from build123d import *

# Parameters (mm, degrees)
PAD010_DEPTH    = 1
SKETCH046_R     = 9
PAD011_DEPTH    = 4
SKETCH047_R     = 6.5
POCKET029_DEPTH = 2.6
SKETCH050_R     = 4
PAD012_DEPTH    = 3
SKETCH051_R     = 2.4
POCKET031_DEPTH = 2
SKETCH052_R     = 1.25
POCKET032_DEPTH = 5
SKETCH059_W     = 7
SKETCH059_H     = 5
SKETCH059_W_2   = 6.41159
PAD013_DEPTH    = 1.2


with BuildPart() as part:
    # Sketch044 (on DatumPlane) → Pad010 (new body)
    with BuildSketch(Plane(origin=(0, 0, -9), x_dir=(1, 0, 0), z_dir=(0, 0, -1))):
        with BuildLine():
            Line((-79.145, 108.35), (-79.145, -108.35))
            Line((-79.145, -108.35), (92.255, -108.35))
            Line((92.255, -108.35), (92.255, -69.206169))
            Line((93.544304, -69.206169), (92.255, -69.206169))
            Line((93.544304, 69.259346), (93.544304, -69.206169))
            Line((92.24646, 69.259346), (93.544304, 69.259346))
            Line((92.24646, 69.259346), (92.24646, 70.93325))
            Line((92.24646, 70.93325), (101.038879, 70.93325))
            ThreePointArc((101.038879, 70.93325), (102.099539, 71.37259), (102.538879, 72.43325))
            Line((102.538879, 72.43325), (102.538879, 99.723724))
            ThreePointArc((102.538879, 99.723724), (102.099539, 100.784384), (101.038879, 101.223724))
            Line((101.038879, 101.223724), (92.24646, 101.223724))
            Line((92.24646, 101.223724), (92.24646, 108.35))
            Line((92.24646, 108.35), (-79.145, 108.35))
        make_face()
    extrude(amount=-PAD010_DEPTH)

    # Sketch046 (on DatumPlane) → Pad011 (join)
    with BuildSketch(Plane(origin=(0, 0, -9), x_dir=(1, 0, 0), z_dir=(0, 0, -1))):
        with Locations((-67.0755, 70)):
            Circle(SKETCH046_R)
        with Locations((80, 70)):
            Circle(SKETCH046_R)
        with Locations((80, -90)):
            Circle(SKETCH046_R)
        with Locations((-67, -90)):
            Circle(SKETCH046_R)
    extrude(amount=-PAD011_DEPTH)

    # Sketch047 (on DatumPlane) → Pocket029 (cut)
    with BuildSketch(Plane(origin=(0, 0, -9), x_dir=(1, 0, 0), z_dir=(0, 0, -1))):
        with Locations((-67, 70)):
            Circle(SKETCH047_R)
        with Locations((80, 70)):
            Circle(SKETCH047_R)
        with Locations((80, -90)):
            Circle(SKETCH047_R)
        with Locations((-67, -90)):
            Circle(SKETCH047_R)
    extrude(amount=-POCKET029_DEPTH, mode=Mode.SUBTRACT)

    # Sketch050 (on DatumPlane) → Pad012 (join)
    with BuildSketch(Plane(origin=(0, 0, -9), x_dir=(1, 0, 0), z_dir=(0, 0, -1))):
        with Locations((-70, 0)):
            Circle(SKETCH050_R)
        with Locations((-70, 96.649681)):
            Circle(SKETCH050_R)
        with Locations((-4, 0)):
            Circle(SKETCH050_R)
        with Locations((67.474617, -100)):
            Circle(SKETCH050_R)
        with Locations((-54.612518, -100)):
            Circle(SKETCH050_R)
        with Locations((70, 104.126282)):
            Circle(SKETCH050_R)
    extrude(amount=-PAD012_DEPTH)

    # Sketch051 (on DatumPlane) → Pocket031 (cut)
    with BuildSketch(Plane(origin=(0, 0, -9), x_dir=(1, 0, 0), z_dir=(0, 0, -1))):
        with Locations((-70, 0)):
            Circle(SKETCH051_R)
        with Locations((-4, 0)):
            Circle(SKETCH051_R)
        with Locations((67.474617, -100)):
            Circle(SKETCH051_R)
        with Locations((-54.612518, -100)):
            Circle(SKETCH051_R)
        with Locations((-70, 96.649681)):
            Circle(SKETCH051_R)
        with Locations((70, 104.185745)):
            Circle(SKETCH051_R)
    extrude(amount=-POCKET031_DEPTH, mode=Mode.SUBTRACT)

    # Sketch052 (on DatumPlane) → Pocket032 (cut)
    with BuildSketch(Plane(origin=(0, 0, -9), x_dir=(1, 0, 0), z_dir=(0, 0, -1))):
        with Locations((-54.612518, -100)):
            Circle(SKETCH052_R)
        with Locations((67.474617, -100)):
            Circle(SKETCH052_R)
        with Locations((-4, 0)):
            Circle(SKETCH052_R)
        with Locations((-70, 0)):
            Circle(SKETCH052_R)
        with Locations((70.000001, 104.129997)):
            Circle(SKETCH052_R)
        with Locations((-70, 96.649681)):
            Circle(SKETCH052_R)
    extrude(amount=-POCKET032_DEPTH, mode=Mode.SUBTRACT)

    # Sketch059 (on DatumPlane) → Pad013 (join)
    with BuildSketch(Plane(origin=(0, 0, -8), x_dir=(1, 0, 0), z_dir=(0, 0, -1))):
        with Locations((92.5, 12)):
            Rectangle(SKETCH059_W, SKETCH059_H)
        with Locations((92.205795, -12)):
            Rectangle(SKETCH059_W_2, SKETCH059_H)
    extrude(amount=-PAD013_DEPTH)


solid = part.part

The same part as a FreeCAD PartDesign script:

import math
import FreeCAD as App
import Part
import Sketcher
from FreeCAD import Vector
Q = App.Units.Quantity


def add_polygon(sketch, points):
    """Adds a closed chain of lines whose ends are joined by coincident constraints."""
    first, n = sketch.GeometryCount, len(points)
    for a, b in zip(points, points[1:] + points[:1]):
        sketch.addGeometry(Part.LineSegment(App.Vector(*a, 0), App.Vector(*b, 0)), False)
    for i in range(n):
        sketch.addConstraint(Sketcher.Constraint("Coincident", first + i, 2, first + (i + 1) % n, 1))

doc = App.newDocument("Part")
body = doc.addObject("PartDesign::Body", "Body")

# Sketch on XY plane
sketch1 = body.newObject("Sketcher::SketchObject", "Sketch")
sketch1.AttachmentSupport = (doc.getObject("XY_Plane"), [""])
sketch1.MapMode = "FlatFace"
sketch1.AttachmentOffset = App.Placement(Vector(0, 0, -9), App.Rotation())
sketch1.addGeometry(Part.LineSegment(Vector(-79.1, -108.3, 0), Vector(-79.1, 108.3, 0)), False)
sketch1.addGeometry(Part.LineSegment(Vector(-79.1, 108.3, 0), Vector(92.3, 108.3, 0)), False)
sketch1.addGeometry(Part.LineSegment(Vector(92.3, 108.3, 0), Vector(92.3, 69.2, 0)), False)
sketch1.addGeometry(Part.LineSegment(Vector(92.3, 69.2, 0), Vector(93.5, 69.2, 0)), False)
sketch1.addGeometry(Part.LineSegment(Vector(93.5, 69.2, 0), Vector(93.5, -69.3, 0)), False)
sketch1.addGeometry(Part.LineSegment(Vector(93.5, -69.3, 0), Vector(92.2, -69.3, 0)), False)
sketch1.addGeometry(Part.LineSegment(Vector(92.2, -69.3, 0), Vector(92.2, -70.9, 0)), False)
sketch1.addGeometry(Part.LineSegment(Vector(92.2, -70.9, 0), Vector(101, -70.9, 0)), False)
sketch1.addGeometry(Part.ArcOfCircle(Part.Circle(Vector(101, -72.4, 0), Vector(0, 0, 1), 1.5), math.radians(0), math.radians(90)), False)
sketch1.addGeometry(Part.LineSegment(Vector(102.5, -72.4, 0), Vector(102.5, -99.7, 0)), False)
sketch1.addGeometry(Part.ArcOfCircle(Part.Circle(Vector(101, -99.7, 0), Vector(0, 0, 1), 1.5), math.radians(-90), math.radians(0)), False)
sketch1.addGeometry(Part.LineSegment(Vector(101, -101.2, 0), Vector(92.2, -101.2, 0)), False)
sketch1.addGeometry(Part.LineSegment(Vector(92.2, -101.2, 0), Vector(92.2, -108.3, 0)), False)
sketch1.addGeometry(Part.LineSegment(Vector(92.2, -108.3, 0), Vector(-79.1, -108.3, 0)), False)
sketch1.addConstraint(Sketcher.Constraint("Coincident", 0, 2, 1, 1))
sketch1.addConstraint(Sketcher.Constraint("Coincident", 1, 2, 2, 1))
sketch1.addConstraint(Sketcher.Constraint("Coincident", 2, 2, 3, 1))
sketch1.addConstraint(Sketcher.Constraint("Coincident", 3, 2, 4, 1))
sketch1.addConstraint(Sketcher.Constraint("Coincident", 4, 2, 5, 1))
sketch1.addConstraint(Sketcher.Constraint("Coincident", 5, 2, 6, 1))
sketch1.addConstraint(Sketcher.Constraint("Coincident", 6, 2, 7, 1))
sketch1.addConstraint(Sketcher.Constraint("Tangent", 7, 2, 8, 2))
sketch1.addConstraint(Sketcher.Constraint("Tangent", 8, 1, 9, 1))
sketch1.addConstraint(Sketcher.Constraint("Tangent", 9, 2, 10, 2))
sketch1.addConstraint(Sketcher.Constraint("Tangent", 10, 1, 11, 1))
sketch1.addConstraint(Sketcher.Constraint("Coincident", 11, 2, 12, 1))
sketch1.addConstraint(Sketcher.Constraint("Coincident", 12, 2, 13, 1))
sketch1.addConstraint(Sketcher.Constraint("Coincident", 13, 2, 0, 1))
sketch1.addConstraint(Sketcher.Constraint("Vertical", 0))
sketch1.addConstraint(Sketcher.Constraint("Horizontal", 1))
sketch1.addConstraint(Sketcher.Constraint("Vertical", 2))
sketch1.addConstraint(Sketcher.Constraint("Horizontal", 3))
sketch1.addConstraint(Sketcher.Constraint("Vertical", 4))
sketch1.addConstraint(Sketcher.Constraint("Horizontal", 5))
sketch1.addConstraint(Sketcher.Constraint("Vertical", 6))
sketch1.addConstraint(Sketcher.Constraint("Horizontal", 7))
sketch1.addConstraint(Sketcher.Constraint("Vertical", 9))
sketch1.addConstraint(Sketcher.Constraint("Horizontal", 11))
sketch1.addConstraint(Sketcher.Constraint("Vertical", 12))
sketch1.addConstraint(Sketcher.Constraint("Horizontal", 13))
sketch1.addConstraint(Sketcher.Constraint("Equal", 8, 10))
sketch1.addConstraint(Sketcher.Constraint("Vertical", 6, 2, 11, 2))
sketch1.addConstraint(Sketcher.Constraint("Radius", 8, Q("1.500001 mm")))
sketch1.addConstraint(Sketcher.Constraint("DistanceX", 1, 1, 1, 2, Q("171.4 mm")))
sketch1.addConstraint(Sketcher.Constraint("DistanceY", 0, 1, 0, 2, Q("216.7 mm")))
sketch1.addConstraint(Sketcher.Constraint("DistanceY", -1, 1, 0, 2, Q("108.35 mm")))
sketch1.addConstraint(Sketcher.Constraint("DistanceX", 0, 2, -1, 1, Q("79.145 mm")))
sketch1.addConstraint(Sketcher.Constraint("DistanceX", 7, 1, 7, 2, Q("8.792419 mm")))
sketch1.addConstraint(Sketcher.Constraint("DistanceX", 13, 2, 13, 1, Q("171.39146 mm")))
sketch1.addConstraint(Sketcher.Constraint("DistanceY", 2, 2, 2, 1, Q("39.143831 mm")))
sketch1.addConstraint(Sketcher.Constraint("DistanceX", 3, 1, 3, 2, Q("1.289304 mm")))
sketch1.addConstraint(Sketcher.Constraint("DistanceY", 4, 2, 4, 1, Q("138.465515 mm")))
sketch1.addConstraint(Sketcher.Constraint("DistanceY", 6, 2, 6, 1, Q("1.673904 mm")))
sketch1.addConstraint(Sketcher.Constraint("DistanceY", 9, 2, 9, 1, Q("27.290474 mm")))
pad1 = body.newObject("PartDesign::Pad", "Pad")
pad1.Profile = sketch1
pad1.Length = 1

# Sketch on XY plane
sketch2 = body.newObject("Sketcher::SketchObject", "Sketch001")
sketch2.AttachmentSupport = (doc.getObject("XY_Plane"), [""])
sketch2.MapMode = "FlatFace"
sketch2.AttachmentOffset = App.Placement(Vector(0, 0, -9), App.Rotation())
sketch2.addGeometry(Part.Circle(Vector(-67, -70, 0), Vector(0, 0, 1), 9), False)
sketch2.addGeometry(Part.Circle(Vector(80, -70, 0), Vector(0, 0, 1), 9), False)
sketch2.addGeometry(Part.Circle(Vector(80, 90, 0), Vector(0, 0, 1), 9), False)
sketch2.addGeometry(Part.Circle(Vector(-67, 90, 0), Vector(0, 0, 1), 9), False)
sketch2.addConstraint(Sketcher.Constraint("Equal", 0, 1))
sketch2.addConstraint(Sketcher.Constraint("Equal", 1, 2))
sketch2.addConstraint(Sketcher.Constraint("Equal", 2, 3))
sketch2.addConstraint(Sketcher.Constraint("Horizontal", 0, 3, 1, 3))
sketch2.addConstraint(Sketcher.Constraint("Horizontal", 2, 3, 3, 3))
sketch2.addConstraint(Sketcher.Constraint("Vertical", 1, 3, 2, 3))
sketch2.addConstraint(Sketcher.Constraint("Diameter", 0, Q("18 mm")))
sketch2.addConstraint(Sketcher.Constraint("DistanceY", 0, 3, -1, 1, Q("70 mm")))
sketch2.addConstraint(Sketcher.Constraint("DistanceX", -1, 1, 1, 3, Q("80 mm")))
sketch2.addConstraint(Sketcher.Constraint("DistanceY", -1, 1, 2, 3, Q("90 mm")))
sketch2.addConstraint(Sketcher.Constraint("DistanceX", 3, 3, -1, 1, Q("67 mm")))
sketch2.addConstraint(Sketcher.Constraint("DistanceX", 0, 3, -1, 1, Q("67.0755 mm")))
pad2 = body.newObject("PartDesign::Pad", "Pad001")
pad2.Profile = sketch2
pad2.Length = 4

# Sketch on XY plane
sketch3 = body.newObject("Sketcher::SketchObject", "Sketch002")
sketch3.AttachmentSupport = (doc.getObject("XY_Plane"), [""])
sketch3.MapMode = "FlatFace"
sketch3.AttachmentOffset = App.Placement(Vector(0, 0, -9), App.Rotation())
sketch3.addGeometry(Part.Circle(Vector(-67, -70, 0), Vector(0, 0, 1), 6), False)
sketch3.addGeometry(Part.Circle(Vector(80, -70, 0), Vector(0, 0, 1), 6), False)
sketch3.addGeometry(Part.Circle(Vector(80, 90, 0), Vector(0, 0, 1), 6), False)
sketch3.addGeometry(Part.Circle(Vector(-67, 90, 0), Vector(0, 0, 1), 6), False)
sketch3.addConstraint(Sketcher.Constraint("Equal", 0, 1))
sketch3.addConstraint(Sketcher.Constraint("Equal", 1, 2))
sketch3.addConstraint(Sketcher.Constraint("Equal", 2, 3))
sketch3.addConstraint(Sketcher.Constraint("Horizontal", 0, 3, 1, 3))
sketch3.addConstraint(Sketcher.Constraint("Horizontal", 2, 3, 3, 3))
sketch3.addConstraint(Sketcher.Constraint("Vertical", 1, 3, 2, 3))
sketch3.addConstraint(Sketcher.Constraint("Vertical", 0, 3, 3, 3))
sketch3.addConstraint(Sketcher.Constraint("Diameter", 0, Q("13 mm")))
sketch3.addConstraint(Sketcher.Constraint("DistanceX", 0, 3, -1, 1, Q("67 mm")))
sketch3.addConstraint(Sketcher.Constraint("DistanceY", 0, 3, -1, 1, Q("70 mm")))
sketch3.addConstraint(Sketcher.Constraint("DistanceX", -1, 1, 1, 3, Q("80 mm")))
sketch3.addConstraint(Sketcher.Constraint("DistanceY", -1, 1, 2, 3, Q("90 mm")))
pocket1 = body.newObject("PartDesign::Pocket", "Pocket")
pocket1.Profile = sketch3
pocket1.Length = 2.6
pocket1.Reversed = True

# Sketch on XY plane
sketch4 = body.newObject("Sketcher::SketchObject", "Sketch003")
sketch4.AttachmentSupport = (doc.getObject("XY_Plane"), [""])
sketch4.MapMode = "FlatFace"
sketch4.AttachmentOffset = App.Placement(Vector(0, 0, -9), App.Rotation())
sketch4.addGeometry(Part.Circle(Vector(-70, 0, 0), Vector(0, 0, 1), 4), False)
sketch4.addGeometry(Part.Circle(Vector(-70, -96.6, 0), Vector(0, 0, 1), 4), False)
sketch4.addGeometry(Part.Circle(Vector(-4, 0, 0), Vector(0, 0, 1), 4), False)
sketch4.addGeometry(Part.Circle(Vector(67.5, 100, 0), Vector(0, 0, 1), 4), False)
sketch4.addGeometry(Part.Circle(Vector(-54.6, 100, 0), Vector(0, 0, 1), 4), False)
sketch4.addGeometry(Part.Circle(Vector(70, -104.1, 0), Vector(0, 0, 1), 4), False)
sketch4.addConstraint(Sketcher.Constraint("Equal", 0, 1))
sketch4.addConstraint(Sketcher.Constraint("Equal", 1, 2))
sketch4.addConstraint(Sketcher.Constraint("Equal", 2, 3))
sketch4.addConstraint(Sketcher.Constraint("Equal", 3, 4))
sketch4.addConstraint(Sketcher.Constraint("Equal", 4, 5))
sketch4.addConstraint(Sketcher.Constraint("PointOnObject", 0, 3, -1))
sketch4.addConstraint(Sketcher.Constraint("PointOnObject", 2, 3, -1))
sketch4.addConstraint(Sketcher.Constraint("Horizontal", 3, 3, 4, 3))
sketch4.addConstraint(Sketcher.Constraint("Vertical", 0, 3, 1, 3))
sketch4.addConstraint(Sketcher.Constraint("Diameter", 0, Q("8 mm")))
sketch4.addConstraint(Sketcher.Constraint("DistanceX", 0, 3, -1, 1, Q("70 mm")))
sketch4.addConstraint(Sketcher.Constraint("DistanceX", 2, 3, -1, 1, Q("4 mm")))
sketch4.addConstraint(Sketcher.Constraint("DistanceY", -1, 1, 3, 3, Q("100 mm")))
sketch4.addConstraint(Sketcher.Constraint("DistanceX", -1, 1, 5, 3, Q("70 mm")))
sketch4.addConstraint(Sketcher.Constraint("DistanceY", 5, 3, 1, 3, Q("7.476601 mm")))
sketch4.addConstraint(Sketcher.Constraint("DistanceY", 1, 3, -1, 1, Q("96.649681 mm")))
sketch4.addConstraint(Sketcher.Constraint("DistanceX", 0, 3, 4, 3, Q("15.387482 mm")))
sketch4.addConstraint(Sketcher.Constraint("DistanceX", -1, 1, 3, 3, Q("67.474617 mm")))
pad3 = body.newObject("PartDesign::Pad", "Pad002")
pad3.Profile = sketch4
pad3.Length = 3

# Sketch on XY plane
sketch5 = body.newObject("Sketcher::SketchObject", "Sketch004")
sketch5.AttachmentSupport = (doc.getObject("XY_Plane"), [""])
sketch5.MapMode = "FlatFace"
sketch5.AttachmentOffset = App.Placement(Vector(0, 0, -9), App.Rotation())
sketch5.addGeometry(Part.Circle(Vector(-70, 0, 0), Vector(0, 0, 1), 2.4), False)
sketch5.addGeometry(Part.Circle(Vector(-4, 0, 0), Vector(0, 0, 1), 2.4), False)
sketch5.addGeometry(Part.Circle(Vector(67.5, 100, 0), Vector(0, 0, 1), 2.4), False)
sketch5.addGeometry(Part.Circle(Vector(-54.6, 100, 0), Vector(0, 0, 1), 2.4), False)
sketch5.addGeometry(Part.Circle(Vector(-70, -96.6, 0), Vector(0, 0, 1), 2.4), False)
sketch5.addGeometry(Part.Circle(Vector(70, -104.2, 0), Vector(0, 0, 1), 2.4), False)
sketch5.addConstraint(Sketcher.Constraint("Equal", 0, 1))
sketch5.addConstraint(Sketcher.Constraint("Equal", 1, 2))
sketch5.addConstraint(Sketcher.Constraint("Equal", 2, 3))
sketch5.addConstraint(Sketcher.Constraint("Equal", 3, 4))
sketch5.addConstraint(Sketcher.Constraint("Equal", 4, 5))
sketch5.addConstraint(Sketcher.Constraint("PointOnObject", 0, 3, -1))
sketch5.addConstraint(Sketcher.Constraint("PointOnObject", 1, 3, -1))
sketch5.addConstraint(Sketcher.Constraint("Horizontal", 2, 3, 3, 3))
sketch5.addConstraint(Sketcher.Constraint("Vertical", 0, 3, 4, 3))
sketch5.addConstraint(Sketcher.Constraint("Diameter", 0, Q("4.8 mm")))
sketch5.addConstraint(Sketcher.Constraint("DistanceX", 0, 3, -1, 1, Q("70 mm")))
sketch5.addConstraint(Sketcher.Constraint("DistanceX", 1, 3, -1, 1, Q("4 mm")))
sketch5.addConstraint(Sketcher.Constraint("DistanceY", -1, 1, 2, 3, Q("100 mm")))
sketch5.addConstraint(Sketcher.Constraint("DistanceX", -1, 1, 5, 3, Q("70 mm")))
sketch5.addConstraint(Sketcher.Constraint("DistanceY", 4, 3, -1, 1, Q("96.649681 mm")))
sketch5.addConstraint(Sketcher.Constraint("DistanceX", 0, 3, 3, 3, Q("15.387482 mm")))
sketch5.addConstraint(Sketcher.Constraint("DistanceX", -1, 1, 2, 3, Q("67.474617 mm")))
sketch5.addConstraint(Sketcher.Constraint("DistanceY", 5, 3, -1, 1, Q("104.185745 mm")))
pocket2 = body.newObject("PartDesign::Pocket", "Pocket001")
pocket2.Profile = sketch5
pocket2.Length = 2
pocket2.Reversed = True

# Sketch on XY plane
sketch6 = body.newObject("Sketcher::SketchObject", "Sketch005")
sketch6.AttachmentSupport = (doc.getObject("XY_Plane"), [""])
sketch6.MapMode = "FlatFace"
sketch6.AttachmentOffset = App.Placement(Vector(0, 0, -9), App.Rotation())
sketch6.addGeometry(Part.Circle(Vector(-54.6, 100, 0), Vector(0, 0, 1), 1.2), False)
sketch6.addGeometry(Part.Circle(Vector(67.5, 100, 0), Vector(0, 0, 1), 1.2), False)
sketch6.addGeometry(Part.Circle(Vector(-4, 0, 0), Vector(0, 0, 1), 1.2), False)
sketch6.addGeometry(Part.Circle(Vector(-70, 0, 0), Vector(0, 0, 1), 1.2), False)
sketch6.addGeometry(Part.Circle(Vector(70, -104.1, 0), Vector(0, 0, 1), 1.2), False)
sketch6.addGeometry(Part.Circle(Vector(-70, -96.6, 0), Vector(0, 0, 1), 1.2), False)
sketch6.addConstraint(Sketcher.Constraint("Equal", 0, 1))
sketch6.addConstraint(Sketcher.Constraint("Equal", 1, 2))
sketch6.addConstraint(Sketcher.Constraint("Equal", 2, 3))
sketch6.addConstraint(Sketcher.Constraint("Equal", 3, 4))
sketch6.addConstraint(Sketcher.Constraint("Equal", 4, 5))
sketch6.addConstraint(Sketcher.Constraint("PointOnObject", 2, 3, -1))
sketch6.addConstraint(Sketcher.Constraint("PointOnObject", 3, 3, -1))
sketch6.addConstraint(Sketcher.Constraint("Horizontal", 0, 3, 1, 3))
sketch6.addConstraint(Sketcher.Constraint("Vertical", 3, 3, 5, 3))
sketch6.addConstraint(Sketcher.Constraint("Diameter", 0, Q("2.5 mm")))
sketch6.addConstraint(Sketcher.Constraint("DistanceY", -1, 1, 0, 3, Q("100 mm")))
sketch6.addConstraint(Sketcher.Constraint("DistanceX", 2, 3, -1, 1, Q("4 mm")))
sketch6.addConstraint(Sketcher.Constraint("DistanceX", 3, 3, -1, 1, Q("70 mm")))
sketch6.addConstraint(Sketcher.Constraint("DistanceX", -1, 1, 4, 3, Q("70.000001 mm")))
sketch6.addConstraint(Sketcher.Constraint("DistanceY", 5, 3, -1, 1, Q("96.649681 mm")))
sketch6.addConstraint(Sketcher.Constraint("DistanceX", 3, 3, 0, 3, Q("15.387482 mm")))
sketch6.addConstraint(Sketcher.Constraint("DistanceX", -1, 1, 1, 3, Q("67.474617 mm")))
sketch6.addConstraint(Sketcher.Constraint("DistanceY", 4, 3, -1, 1, Q("104.129997 mm")))
pocket3 = body.newObject("PartDesign::Pocket", "Pocket002")
pocket3.Profile = sketch6
pocket3.Length = 5
pocket3.Reversed = True

# Sketch on XY plane
sketch7 = body.newObject("Sketcher::SketchObject", "Sketch006")
sketch7.AttachmentSupport = (doc.getObject("XY_Plane"), [""])
sketch7.MapMode = "FlatFace"
sketch7.AttachmentOffset = App.Placement(Vector(0, 0, -8), App.Rotation())
add_polygon(sketch7, [(89, -14), (89, -10), (96, -10), (96, -14)])  # lines 0-3
add_polygon(sketch7, [(89, 10), (89, 14), (95, 14), (95, 10)])  # lines 4-7
sketch7.addConstraint(Sketcher.Constraint("Vertical", 0))
sketch7.addConstraint(Sketcher.Constraint("Horizontal", 1))
sketch7.addConstraint(Sketcher.Constraint("Vertical", 2))
sketch7.addConstraint(Sketcher.Constraint("Horizontal", 3))
sketch7.addConstraint(Sketcher.Constraint("Vertical", 4))
sketch7.addConstraint(Sketcher.Constraint("Horizontal", 5))
sketch7.addConstraint(Sketcher.Constraint("Vertical", 6))
sketch7.addConstraint(Sketcher.Constraint("Horizontal", 7))
sketch7.addConstraint(Sketcher.Constraint("Symmetric", 3, 2, 4, 2, -1))
sketch7.addConstraint(Sketcher.Constraint("Equal", 2, 4))
sketch7.addConstraint(Sketcher.Constraint("DistanceX", 1, 1, 1, 2, Q("7 mm")))
sketch7.addConstraint(Sketcher.Constraint("DistanceY", 0, 1, 0, 2, Q("5 mm")))
sketch7.addConstraint(Sketcher.Constraint("DistanceX", -1, 1, 0, 2, Q("89 mm")))
sketch7.addConstraint(Sketcher.Constraint("DistanceY", 0, 2, 4, 2, Q("24 mm")))
sketch7.addConstraint(Sketcher.Constraint("DistanceX", 5, 1, 5, 2, Q("6.41159 mm")))
pad4 = body.newObject("PartDesign::Pad", "Pad003")
pad4.Profile = sketch7
pad4.Length = 1.2

doc.recompute()
